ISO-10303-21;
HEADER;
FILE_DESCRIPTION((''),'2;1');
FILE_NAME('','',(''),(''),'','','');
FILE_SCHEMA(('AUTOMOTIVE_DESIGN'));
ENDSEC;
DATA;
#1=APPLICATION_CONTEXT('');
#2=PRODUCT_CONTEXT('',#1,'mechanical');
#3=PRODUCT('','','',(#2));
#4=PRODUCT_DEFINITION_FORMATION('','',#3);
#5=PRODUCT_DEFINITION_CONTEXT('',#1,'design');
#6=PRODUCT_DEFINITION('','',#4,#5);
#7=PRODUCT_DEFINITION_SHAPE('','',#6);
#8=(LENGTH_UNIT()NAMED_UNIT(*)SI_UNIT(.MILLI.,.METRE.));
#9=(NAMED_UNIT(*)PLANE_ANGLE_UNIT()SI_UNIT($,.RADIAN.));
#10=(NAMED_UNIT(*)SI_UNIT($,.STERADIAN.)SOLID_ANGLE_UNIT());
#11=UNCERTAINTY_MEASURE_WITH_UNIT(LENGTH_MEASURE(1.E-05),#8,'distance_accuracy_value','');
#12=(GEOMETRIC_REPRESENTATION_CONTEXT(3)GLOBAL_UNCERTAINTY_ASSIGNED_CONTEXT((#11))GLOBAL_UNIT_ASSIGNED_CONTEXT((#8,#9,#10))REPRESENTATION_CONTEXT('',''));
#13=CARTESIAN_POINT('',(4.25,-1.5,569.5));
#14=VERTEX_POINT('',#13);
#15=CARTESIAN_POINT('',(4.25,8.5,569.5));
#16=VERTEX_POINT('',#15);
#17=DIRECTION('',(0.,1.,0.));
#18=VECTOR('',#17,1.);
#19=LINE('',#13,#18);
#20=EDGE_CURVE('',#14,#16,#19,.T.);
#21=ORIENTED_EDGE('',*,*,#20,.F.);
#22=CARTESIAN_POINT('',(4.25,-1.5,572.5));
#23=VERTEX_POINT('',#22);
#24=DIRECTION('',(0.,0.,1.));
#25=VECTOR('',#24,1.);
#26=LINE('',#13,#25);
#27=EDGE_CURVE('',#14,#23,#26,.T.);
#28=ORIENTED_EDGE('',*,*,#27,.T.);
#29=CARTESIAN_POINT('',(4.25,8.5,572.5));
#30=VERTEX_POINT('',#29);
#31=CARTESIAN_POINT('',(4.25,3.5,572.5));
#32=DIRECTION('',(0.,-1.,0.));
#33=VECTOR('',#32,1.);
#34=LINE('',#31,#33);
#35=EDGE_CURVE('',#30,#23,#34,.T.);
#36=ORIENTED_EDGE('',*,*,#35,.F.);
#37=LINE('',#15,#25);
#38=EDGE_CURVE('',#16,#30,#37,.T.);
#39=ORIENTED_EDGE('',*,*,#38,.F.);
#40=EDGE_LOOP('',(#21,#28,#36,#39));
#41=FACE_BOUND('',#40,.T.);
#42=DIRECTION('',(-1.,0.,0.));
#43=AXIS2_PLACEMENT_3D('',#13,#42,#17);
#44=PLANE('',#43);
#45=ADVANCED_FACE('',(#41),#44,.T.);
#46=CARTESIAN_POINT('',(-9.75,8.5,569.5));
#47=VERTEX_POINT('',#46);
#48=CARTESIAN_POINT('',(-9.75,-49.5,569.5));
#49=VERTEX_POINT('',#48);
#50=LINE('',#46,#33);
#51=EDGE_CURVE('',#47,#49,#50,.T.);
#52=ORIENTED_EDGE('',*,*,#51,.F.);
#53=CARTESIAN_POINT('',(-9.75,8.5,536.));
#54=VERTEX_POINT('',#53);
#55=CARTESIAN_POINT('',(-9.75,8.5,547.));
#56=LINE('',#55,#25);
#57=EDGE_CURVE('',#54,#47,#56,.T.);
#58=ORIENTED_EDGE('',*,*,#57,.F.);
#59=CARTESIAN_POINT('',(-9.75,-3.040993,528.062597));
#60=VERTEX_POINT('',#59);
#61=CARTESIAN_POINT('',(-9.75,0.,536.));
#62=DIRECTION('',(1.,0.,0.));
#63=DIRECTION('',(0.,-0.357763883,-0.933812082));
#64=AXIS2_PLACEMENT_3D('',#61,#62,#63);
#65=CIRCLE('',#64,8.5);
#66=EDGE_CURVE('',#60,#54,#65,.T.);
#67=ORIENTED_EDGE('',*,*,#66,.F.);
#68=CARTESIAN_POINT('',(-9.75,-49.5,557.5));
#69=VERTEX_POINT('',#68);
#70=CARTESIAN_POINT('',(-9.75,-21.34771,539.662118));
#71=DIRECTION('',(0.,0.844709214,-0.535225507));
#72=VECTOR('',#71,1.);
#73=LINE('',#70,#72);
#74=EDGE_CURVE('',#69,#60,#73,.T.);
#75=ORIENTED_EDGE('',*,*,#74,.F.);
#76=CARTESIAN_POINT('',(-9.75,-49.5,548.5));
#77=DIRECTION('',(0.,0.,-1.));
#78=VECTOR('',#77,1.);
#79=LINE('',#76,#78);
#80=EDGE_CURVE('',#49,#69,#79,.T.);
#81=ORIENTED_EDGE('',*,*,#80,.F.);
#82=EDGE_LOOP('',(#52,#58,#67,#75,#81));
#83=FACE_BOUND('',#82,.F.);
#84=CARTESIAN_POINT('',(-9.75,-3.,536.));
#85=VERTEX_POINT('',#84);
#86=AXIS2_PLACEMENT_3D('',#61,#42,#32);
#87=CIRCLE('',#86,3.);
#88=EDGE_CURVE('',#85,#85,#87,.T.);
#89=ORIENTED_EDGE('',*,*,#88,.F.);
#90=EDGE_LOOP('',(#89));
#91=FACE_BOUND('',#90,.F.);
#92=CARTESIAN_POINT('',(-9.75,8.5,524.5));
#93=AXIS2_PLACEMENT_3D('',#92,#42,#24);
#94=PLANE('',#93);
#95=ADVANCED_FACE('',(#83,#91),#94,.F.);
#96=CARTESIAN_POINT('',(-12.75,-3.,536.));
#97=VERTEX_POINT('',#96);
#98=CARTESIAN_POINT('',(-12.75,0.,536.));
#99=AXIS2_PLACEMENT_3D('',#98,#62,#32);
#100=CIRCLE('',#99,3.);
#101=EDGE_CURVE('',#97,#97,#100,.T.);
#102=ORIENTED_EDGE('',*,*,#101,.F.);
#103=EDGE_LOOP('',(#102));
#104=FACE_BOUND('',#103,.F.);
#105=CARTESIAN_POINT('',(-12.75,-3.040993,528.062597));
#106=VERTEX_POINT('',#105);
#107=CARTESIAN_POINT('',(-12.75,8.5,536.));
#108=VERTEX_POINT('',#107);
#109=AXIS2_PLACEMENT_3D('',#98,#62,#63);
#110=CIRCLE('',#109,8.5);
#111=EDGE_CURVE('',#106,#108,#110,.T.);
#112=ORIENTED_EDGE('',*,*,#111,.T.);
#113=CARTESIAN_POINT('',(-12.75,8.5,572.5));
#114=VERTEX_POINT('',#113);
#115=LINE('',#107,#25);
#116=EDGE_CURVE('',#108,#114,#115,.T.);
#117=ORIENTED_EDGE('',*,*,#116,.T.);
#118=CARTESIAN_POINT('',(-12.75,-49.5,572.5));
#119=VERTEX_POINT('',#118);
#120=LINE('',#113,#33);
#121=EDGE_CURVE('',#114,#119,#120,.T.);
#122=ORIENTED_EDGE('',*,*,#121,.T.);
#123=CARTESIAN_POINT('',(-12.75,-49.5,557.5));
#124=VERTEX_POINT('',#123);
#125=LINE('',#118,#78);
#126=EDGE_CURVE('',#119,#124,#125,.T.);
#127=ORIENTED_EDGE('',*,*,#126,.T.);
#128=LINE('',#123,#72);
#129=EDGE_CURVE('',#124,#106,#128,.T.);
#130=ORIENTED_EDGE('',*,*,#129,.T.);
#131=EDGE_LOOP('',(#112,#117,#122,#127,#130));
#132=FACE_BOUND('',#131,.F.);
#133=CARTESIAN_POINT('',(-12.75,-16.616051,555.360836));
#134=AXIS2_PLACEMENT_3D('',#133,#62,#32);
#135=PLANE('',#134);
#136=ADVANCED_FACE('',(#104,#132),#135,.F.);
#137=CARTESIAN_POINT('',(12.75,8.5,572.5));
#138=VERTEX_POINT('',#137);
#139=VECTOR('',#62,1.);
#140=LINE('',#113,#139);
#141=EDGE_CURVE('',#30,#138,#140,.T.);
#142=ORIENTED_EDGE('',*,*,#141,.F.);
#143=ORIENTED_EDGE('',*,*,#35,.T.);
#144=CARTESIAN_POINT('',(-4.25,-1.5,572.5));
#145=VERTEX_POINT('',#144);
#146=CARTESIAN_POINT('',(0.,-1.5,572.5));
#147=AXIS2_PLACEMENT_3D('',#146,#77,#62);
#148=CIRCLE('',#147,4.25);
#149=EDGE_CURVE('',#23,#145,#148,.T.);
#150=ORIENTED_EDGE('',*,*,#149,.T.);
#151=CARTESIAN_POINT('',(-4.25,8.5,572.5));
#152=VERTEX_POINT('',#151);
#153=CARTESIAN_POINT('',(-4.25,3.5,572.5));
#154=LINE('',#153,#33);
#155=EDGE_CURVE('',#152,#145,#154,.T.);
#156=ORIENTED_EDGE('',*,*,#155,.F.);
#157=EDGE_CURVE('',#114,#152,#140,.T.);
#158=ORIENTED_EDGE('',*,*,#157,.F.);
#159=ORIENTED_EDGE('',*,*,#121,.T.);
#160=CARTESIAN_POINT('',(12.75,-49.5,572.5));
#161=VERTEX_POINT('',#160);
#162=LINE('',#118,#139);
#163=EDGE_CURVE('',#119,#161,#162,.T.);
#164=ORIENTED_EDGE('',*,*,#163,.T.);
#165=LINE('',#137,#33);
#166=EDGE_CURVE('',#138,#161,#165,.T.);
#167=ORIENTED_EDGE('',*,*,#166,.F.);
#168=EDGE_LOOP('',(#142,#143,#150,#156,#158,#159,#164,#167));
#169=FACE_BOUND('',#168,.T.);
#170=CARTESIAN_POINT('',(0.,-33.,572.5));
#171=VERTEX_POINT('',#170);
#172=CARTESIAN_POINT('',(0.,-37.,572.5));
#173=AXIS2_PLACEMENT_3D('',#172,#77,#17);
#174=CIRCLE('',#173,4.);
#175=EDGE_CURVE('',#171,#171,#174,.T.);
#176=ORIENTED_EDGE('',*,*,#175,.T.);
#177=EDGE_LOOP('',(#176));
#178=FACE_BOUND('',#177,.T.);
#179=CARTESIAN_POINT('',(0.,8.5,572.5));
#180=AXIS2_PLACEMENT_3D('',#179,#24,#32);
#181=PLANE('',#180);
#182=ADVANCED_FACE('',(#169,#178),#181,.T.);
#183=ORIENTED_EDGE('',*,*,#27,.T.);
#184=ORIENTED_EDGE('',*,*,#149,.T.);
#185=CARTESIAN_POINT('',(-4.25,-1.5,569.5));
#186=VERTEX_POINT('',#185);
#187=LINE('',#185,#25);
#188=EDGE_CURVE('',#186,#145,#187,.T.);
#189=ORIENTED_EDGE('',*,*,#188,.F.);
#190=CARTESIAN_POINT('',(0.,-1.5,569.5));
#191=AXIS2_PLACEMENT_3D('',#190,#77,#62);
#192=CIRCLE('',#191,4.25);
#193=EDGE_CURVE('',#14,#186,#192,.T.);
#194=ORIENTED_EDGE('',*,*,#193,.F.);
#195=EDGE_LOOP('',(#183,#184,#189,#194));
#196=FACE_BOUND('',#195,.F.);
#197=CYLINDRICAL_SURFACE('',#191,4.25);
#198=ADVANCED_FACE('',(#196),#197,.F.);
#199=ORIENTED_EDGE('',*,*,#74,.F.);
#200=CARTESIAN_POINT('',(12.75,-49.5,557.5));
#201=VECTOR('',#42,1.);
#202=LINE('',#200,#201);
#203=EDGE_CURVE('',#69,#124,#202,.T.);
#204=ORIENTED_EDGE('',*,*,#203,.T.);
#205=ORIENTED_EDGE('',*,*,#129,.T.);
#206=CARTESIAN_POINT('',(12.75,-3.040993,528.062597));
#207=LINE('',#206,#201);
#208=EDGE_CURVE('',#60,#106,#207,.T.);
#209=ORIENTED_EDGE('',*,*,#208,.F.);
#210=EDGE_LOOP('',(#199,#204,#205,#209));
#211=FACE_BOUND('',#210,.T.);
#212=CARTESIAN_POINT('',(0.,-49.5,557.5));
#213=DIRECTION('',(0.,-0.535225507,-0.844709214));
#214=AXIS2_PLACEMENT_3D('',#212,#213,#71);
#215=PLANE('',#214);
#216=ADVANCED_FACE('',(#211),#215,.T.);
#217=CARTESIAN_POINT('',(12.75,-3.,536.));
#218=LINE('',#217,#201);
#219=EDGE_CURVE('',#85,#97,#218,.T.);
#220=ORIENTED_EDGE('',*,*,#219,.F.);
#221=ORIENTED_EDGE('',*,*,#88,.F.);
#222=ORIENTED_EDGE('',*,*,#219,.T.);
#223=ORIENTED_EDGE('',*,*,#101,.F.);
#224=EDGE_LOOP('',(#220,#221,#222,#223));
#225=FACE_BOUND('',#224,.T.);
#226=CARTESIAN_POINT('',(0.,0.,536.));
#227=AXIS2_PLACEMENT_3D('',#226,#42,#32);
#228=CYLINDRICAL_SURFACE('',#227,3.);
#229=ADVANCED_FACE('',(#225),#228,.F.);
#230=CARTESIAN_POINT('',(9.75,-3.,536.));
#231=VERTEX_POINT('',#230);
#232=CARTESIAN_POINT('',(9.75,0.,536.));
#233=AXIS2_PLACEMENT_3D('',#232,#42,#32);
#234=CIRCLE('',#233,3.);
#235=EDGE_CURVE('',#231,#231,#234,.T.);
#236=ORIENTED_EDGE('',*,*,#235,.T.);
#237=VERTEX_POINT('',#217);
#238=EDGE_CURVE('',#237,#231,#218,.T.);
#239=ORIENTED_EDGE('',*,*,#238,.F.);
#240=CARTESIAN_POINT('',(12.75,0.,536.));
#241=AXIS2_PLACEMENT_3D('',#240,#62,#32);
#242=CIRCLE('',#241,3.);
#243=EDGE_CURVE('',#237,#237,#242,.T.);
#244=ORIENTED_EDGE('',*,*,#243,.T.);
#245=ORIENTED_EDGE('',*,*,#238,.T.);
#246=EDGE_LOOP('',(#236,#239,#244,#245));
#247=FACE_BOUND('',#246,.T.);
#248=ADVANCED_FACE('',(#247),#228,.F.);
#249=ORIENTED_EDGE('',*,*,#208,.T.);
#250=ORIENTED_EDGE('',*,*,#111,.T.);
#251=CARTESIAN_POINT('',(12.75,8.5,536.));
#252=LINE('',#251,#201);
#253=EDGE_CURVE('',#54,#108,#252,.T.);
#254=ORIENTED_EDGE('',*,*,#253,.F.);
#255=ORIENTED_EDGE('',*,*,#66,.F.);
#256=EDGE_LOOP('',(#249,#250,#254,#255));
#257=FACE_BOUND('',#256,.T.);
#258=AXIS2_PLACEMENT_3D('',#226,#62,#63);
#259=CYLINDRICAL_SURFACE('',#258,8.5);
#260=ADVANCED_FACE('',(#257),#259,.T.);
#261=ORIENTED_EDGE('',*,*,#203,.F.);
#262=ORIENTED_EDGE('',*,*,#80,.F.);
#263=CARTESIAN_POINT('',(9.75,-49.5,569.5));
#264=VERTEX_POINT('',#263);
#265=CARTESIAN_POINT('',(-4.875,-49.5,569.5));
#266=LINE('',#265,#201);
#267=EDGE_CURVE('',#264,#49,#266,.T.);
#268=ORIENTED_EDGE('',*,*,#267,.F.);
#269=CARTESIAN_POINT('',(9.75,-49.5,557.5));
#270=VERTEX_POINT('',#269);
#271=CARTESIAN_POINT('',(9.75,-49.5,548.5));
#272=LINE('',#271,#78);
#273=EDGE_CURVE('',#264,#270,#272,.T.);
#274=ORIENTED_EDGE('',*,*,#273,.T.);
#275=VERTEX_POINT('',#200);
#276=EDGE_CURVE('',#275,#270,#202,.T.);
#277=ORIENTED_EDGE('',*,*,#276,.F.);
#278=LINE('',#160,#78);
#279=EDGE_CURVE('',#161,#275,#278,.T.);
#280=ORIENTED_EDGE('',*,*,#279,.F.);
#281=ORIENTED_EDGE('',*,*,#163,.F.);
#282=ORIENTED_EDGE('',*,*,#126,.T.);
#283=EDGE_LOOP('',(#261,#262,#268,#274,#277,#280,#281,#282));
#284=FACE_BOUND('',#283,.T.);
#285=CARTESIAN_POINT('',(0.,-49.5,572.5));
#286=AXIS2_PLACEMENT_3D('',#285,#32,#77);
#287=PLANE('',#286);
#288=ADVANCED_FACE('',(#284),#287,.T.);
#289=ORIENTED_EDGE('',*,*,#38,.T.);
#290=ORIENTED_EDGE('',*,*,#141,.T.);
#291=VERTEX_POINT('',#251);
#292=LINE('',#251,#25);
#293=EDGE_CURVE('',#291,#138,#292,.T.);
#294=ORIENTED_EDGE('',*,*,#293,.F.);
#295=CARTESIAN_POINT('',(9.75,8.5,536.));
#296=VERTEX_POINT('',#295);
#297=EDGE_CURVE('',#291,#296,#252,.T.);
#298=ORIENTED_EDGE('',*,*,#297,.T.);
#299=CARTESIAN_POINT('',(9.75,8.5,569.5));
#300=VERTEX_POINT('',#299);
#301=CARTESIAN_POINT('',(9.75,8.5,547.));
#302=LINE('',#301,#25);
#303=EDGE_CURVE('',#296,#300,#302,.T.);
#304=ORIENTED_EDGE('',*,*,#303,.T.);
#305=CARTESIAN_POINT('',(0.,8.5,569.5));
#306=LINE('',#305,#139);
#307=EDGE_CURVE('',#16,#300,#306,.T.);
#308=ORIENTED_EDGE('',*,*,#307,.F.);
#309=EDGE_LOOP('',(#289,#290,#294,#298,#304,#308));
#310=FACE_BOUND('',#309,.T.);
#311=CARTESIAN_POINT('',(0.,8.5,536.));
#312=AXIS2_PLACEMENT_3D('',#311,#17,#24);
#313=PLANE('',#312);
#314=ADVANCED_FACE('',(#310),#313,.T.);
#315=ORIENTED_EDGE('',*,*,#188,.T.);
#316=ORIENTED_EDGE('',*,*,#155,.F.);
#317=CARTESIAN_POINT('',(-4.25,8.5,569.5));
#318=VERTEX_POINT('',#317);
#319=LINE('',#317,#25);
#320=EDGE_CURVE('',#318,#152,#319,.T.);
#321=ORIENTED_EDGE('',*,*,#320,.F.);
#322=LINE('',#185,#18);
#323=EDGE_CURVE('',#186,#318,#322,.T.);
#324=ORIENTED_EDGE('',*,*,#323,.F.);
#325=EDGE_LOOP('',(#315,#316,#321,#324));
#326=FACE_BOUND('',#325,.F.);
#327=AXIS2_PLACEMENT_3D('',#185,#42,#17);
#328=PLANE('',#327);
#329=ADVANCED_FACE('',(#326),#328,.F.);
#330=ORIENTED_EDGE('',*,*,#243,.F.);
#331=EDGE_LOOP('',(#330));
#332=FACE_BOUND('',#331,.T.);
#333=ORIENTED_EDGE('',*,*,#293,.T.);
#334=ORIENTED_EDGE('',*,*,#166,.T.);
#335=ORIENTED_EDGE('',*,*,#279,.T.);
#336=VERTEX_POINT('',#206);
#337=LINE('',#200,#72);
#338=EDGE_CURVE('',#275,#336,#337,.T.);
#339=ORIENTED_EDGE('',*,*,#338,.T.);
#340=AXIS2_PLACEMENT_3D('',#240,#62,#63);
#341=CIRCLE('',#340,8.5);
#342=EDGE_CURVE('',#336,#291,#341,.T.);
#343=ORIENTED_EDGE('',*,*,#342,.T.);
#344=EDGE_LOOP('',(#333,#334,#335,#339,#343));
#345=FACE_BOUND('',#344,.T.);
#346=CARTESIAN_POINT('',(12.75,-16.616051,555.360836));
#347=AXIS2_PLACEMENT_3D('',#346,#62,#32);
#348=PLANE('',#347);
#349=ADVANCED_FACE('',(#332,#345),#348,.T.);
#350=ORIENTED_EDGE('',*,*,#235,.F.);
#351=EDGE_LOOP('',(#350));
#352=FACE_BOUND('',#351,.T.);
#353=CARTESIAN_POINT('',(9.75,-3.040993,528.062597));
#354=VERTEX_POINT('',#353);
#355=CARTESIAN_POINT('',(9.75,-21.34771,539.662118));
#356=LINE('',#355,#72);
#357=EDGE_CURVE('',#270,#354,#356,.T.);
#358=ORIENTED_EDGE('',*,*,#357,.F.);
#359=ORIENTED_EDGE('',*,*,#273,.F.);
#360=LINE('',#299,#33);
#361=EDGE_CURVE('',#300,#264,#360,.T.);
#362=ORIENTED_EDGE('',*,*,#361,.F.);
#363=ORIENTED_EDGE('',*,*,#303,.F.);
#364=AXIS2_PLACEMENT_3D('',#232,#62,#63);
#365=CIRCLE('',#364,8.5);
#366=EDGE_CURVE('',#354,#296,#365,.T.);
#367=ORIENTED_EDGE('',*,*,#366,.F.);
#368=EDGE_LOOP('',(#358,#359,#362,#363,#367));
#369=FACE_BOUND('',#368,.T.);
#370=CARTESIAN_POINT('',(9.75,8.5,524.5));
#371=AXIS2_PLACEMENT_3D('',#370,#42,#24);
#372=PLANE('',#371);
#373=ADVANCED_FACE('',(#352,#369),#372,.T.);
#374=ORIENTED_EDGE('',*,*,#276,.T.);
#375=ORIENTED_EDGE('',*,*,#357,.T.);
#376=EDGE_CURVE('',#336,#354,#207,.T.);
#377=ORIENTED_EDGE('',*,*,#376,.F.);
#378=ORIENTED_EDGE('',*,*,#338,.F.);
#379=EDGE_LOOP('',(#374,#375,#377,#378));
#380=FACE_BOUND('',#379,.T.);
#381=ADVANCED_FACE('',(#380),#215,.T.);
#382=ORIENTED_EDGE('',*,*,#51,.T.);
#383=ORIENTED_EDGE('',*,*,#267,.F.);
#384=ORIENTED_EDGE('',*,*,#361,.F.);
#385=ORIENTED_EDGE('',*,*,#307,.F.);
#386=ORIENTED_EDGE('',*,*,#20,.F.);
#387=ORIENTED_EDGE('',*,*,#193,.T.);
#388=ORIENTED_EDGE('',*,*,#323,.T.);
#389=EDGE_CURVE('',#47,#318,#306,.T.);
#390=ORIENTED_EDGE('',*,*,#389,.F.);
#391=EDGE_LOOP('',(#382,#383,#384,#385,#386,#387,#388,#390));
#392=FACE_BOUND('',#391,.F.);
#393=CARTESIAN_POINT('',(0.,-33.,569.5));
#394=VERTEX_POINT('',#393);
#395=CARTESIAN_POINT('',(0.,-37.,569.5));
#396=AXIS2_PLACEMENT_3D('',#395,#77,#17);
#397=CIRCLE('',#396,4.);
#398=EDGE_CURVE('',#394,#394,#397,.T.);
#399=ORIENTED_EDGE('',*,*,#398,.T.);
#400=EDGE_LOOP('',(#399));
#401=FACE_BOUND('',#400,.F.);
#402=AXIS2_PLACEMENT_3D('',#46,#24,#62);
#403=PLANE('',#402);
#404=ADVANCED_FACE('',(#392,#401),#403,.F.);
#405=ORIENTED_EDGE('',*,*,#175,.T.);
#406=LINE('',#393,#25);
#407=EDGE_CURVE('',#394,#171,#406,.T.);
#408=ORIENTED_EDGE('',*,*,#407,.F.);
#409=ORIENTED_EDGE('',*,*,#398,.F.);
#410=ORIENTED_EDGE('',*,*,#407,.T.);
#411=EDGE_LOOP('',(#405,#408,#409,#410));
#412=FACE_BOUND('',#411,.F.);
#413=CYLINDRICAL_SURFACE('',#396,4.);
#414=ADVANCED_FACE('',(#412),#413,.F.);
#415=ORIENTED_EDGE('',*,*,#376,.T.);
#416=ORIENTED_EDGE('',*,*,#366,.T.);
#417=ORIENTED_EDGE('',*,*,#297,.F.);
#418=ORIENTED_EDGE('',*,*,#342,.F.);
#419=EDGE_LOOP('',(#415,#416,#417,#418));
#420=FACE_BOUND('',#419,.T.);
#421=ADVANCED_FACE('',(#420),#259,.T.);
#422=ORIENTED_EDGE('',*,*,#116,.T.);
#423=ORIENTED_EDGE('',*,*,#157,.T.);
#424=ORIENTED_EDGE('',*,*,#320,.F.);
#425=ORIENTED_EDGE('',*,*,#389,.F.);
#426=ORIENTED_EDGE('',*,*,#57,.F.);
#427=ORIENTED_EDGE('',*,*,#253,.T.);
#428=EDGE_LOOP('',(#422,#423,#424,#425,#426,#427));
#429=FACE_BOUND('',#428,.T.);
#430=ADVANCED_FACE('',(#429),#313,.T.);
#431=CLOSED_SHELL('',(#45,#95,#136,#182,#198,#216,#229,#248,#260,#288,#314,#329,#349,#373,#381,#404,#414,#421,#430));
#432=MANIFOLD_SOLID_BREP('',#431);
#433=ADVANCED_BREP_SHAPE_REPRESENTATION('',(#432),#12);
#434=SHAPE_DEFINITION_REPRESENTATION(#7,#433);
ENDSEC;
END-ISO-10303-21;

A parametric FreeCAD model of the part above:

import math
import FreeCAD as App
import Part
import Sketcher


def add_polygon(sketch, points):
    """Adds a closed chain of lines whose ends are joined by coincident constraints."""
    first, n = sketch.GeometryCount, len(points)
    for a, b in zip(points, points[1:] + points[:1]):
        sketch.addGeometry(Part.LineSegment(App.Vector(*a, 0), App.Vector(*b, 0)), False)
    for i in range(n):
        sketch.addConstraint(Sketcher.Constraint("Coincident", first + i, 2, first + (i + 1) % n, 1))

doc = App.newDocument("Part")
body = doc.addObject("PartDesign::Body", "Body")

# Sketch on XZ plane
sketch1 = doc.addObject("Sketcher::SketchObject", "Sketch")
body.addObject(sketch1)
sketch1.AttachmentSupport = (doc.XZ_Plane, [""])
sketch1.MapMode = "FlatFace"
sketch1.addGeometry([
    Part.LineSegment(App.Vector(-8.5, 0, 0), App.Vector(-8.5, -36.5, 0)),  # 0
    Part.LineSegment(App.Vector(-8.5, -36.5, 0), App.Vector(49.5, -36.5, 0)),  # 1
    Part.LineSegment(App.Vector(49.5, -36.5, 0), App.Vector(49.5, -21.5, 0)),  # 2
    Part.LineSegment(App.Vector(49.5, -21.5, 0), App.Vector(3, 7.9, 0)),  # 3
    Part.ArcOfCircle(Part.Circle(App.Vector(0, 0, 0), App.Vector(0, 0, 1), 8.5), math.radians(69), math.radians(180)),  # 4
    Part.Circle(App.Vector(0, 0, 0), App.Vector(0, 0, 1), 3),  # 5
], False)
sketch1.addConstraint([
    Sketcher.Constraint("Coincident", 0, 2, 1, 1),
    Sketcher.Constraint("Coincident", 1, 2, 2, 1),
    Sketcher.Constraint("Coincident", 2, 2, 3, 1),
    Sketcher.Constraint("Coincident", 3, 2, 4, 1),
    Sketcher.Constraint("Tangent", 4, 2, 0, 1),
    Sketcher.Constraint("Vertical", 0),
    Sketcher.Constraint("Horizontal", 1),
    Sketcher.Constraint("Vertical", 2),
    Sketcher.Constraint("Coincident", 4, 3, -1, 1),
    Sketcher.Constraint("Coincident", 5, 3, -1, 1),
    Sketcher.Constraint("Diameter", 5, 6.0),
    Sketcher.Constraint("Radius", 4, 8.5),
    Sketcher.Constraint("DistanceX", 1, 1, 1, 2, 58.0),
    Sketcher.Constraint("DistanceY", 2, 1, 2, 2, 15.0),
    Sketcher.Constraint("Distance", 3, 55.0),
    Sketcher.Constraint("DistanceY", 0, 2, 0, 1, 36.5),
])
pad1 = doc.addObject("PartDesign::Pad", "Pad")
body.addObject(pad1)
pad1.Profile = sketch1
pad1.Length = 25.5
pad1.Midplane = True

# Sketch on YZ plane
sketch2 = doc.addObject("Sketcher::SketchObject", "Sketch001")
body.addObject(sketch2)
sketch2.AttachmentSupport = (doc.YZ_Plane, [""])
sketch2.MapMode = "FlatFace"
sketch2.AttachmentOffset = App.Placement(App.Vector(0, 0, -8.5), App.Rotation())
add_polygon(sketch2, [(-10, 12), (10, 12), (10, -34), (-10, -34)])  # lines 0-3
sketch2.addConstraint([
    Sketcher.Constraint("Horizontal", 0),
    Sketcher.Constraint("Vertical", 1),
    Sketcher.Constraint("Horizontal", 2),
    Sketcher.Constraint("Vertical", 3),
    Sketcher.Constraint("DistanceY", 1, 2, 1, 1, 45.0),
    Sketcher.Constraint("DistanceX", 0, 1, 0, 2, 19.5),
    Sketcher.Constraint("DistanceY", -1, 1, 0, 2, 11.5),
    Sketcher.Constraint("DistanceX", -1, 1, 0, 2, 9.75),
])
pocket1 = doc.addObject("PartDesign::Pocket", "Pocket")
body.addObject(pocket1)
pocket1.Profile = sketch2
pocket1.Type = "ThroughAll"
pocket1.Reversed = True

# Sketch on XY plane
sketch3 = doc.addObject("Sketcher::SketchObject", "Sketch002")
body.addObject(sketch3)
sketch3.AttachmentSupport = (doc.XY_Plane, [""])
sketch3.MapMode = "FlatFace"
sketch3.AttachmentOffset = App.Placement(App.Vector(0, 0, -33.5), App.Rotation())
sketch3.addGeometry([
    Part.Circle(App.Vector(37, 0, 0), App.Vector(0, 0, 1), 4),  # 0
    Part.LineSegment(App.Vector(-8.5, -4.2, 0), App.Vector(1.5, -4.2, 0)),  # 1
    Part.ArcOfCircle(Part.Circle(App.Vector(1.5, 0, 0), App.Vector(0, 0, 1), 4.2), math.radians(-90), math.radians(90)),  # 2
    Part.LineSegment(App.Vector(1.5, 4.2, 0), App.Vector(-8.5, 4.2, 0)),  # 3
    Part.LineSegment(App.Vector(-8.5, 4.2, 0), App.Vector(-8.5, -4.2, 0)),  # 4
], False)
sketch3.addConstraint([
    Sketcher.Constraint("Tangent", 1, 2, 2, 1),
    Sketcher.Constraint("Tangent", 2, 2, 3, 1),
    Sketcher.Constraint("Coincident", 3, 2, 4, 1),
    Sketcher.Constraint("Coincident", 4, 2, 1, 1),
    Sketcher.Constraint("Horizontal", 1),
    Sketcher.Constraint("Horizontal", 3),
    Sketcher.Constraint("Vertical", 4),
    Sketcher.Constraint("PointOnObject", 0, 3, -1),
    Sketcher.Constraint("PointOnObject", 2, 3, -1),
    Sketcher.Constraint("Diameter", 0, 8.0),
    Sketcher.Constraint("DistanceX", 1, 1, 1, 2, 10.0),
    Sketcher.Constraint("Radius", 2, 4.25),
    Sketcher.Constraint("DistanceX", -1, 1, 0, 3, 37.0),
    Sketcher.Constraint("DistanceX", -1, 1, 2, 3, 1.5),
])
pocket2 = doc.addObject("PartDesign::Pocket", "Pocket001")
body.addObject(pocket2)
pocket2.Profile = sketch3
pocket2.Type = "ThroughAll"
body2 = doc.addObject("PartDesign::Body", "Body001")
doc.recompute()

body.Placement = App.Placement(App.Vector(0, 0, 0), App.Rotation(App.Vector(1, 0, 0), 180))
boolean = doc.addObject("PartDesign::Boolean", "Boolean")
body2.addObject(boolean)
boolean.Type = "Fuse"
boolean.addObjects([body])
body3 = doc.addObject("PartDesign::Body", "Body002")
doc.recompute()

body2.Placement = App.Placement(App.Vector(0, 0, 536), App.Rotation(App.Vector(0, 0, 1), 270))
boolean2 = doc.addObject("PartDesign::Boolean", "Boolean001")
body3.addObject(boolean2)
boolean2.Type = "Fuse"
boolean2.addObjects([body2])

doc.recompute()
